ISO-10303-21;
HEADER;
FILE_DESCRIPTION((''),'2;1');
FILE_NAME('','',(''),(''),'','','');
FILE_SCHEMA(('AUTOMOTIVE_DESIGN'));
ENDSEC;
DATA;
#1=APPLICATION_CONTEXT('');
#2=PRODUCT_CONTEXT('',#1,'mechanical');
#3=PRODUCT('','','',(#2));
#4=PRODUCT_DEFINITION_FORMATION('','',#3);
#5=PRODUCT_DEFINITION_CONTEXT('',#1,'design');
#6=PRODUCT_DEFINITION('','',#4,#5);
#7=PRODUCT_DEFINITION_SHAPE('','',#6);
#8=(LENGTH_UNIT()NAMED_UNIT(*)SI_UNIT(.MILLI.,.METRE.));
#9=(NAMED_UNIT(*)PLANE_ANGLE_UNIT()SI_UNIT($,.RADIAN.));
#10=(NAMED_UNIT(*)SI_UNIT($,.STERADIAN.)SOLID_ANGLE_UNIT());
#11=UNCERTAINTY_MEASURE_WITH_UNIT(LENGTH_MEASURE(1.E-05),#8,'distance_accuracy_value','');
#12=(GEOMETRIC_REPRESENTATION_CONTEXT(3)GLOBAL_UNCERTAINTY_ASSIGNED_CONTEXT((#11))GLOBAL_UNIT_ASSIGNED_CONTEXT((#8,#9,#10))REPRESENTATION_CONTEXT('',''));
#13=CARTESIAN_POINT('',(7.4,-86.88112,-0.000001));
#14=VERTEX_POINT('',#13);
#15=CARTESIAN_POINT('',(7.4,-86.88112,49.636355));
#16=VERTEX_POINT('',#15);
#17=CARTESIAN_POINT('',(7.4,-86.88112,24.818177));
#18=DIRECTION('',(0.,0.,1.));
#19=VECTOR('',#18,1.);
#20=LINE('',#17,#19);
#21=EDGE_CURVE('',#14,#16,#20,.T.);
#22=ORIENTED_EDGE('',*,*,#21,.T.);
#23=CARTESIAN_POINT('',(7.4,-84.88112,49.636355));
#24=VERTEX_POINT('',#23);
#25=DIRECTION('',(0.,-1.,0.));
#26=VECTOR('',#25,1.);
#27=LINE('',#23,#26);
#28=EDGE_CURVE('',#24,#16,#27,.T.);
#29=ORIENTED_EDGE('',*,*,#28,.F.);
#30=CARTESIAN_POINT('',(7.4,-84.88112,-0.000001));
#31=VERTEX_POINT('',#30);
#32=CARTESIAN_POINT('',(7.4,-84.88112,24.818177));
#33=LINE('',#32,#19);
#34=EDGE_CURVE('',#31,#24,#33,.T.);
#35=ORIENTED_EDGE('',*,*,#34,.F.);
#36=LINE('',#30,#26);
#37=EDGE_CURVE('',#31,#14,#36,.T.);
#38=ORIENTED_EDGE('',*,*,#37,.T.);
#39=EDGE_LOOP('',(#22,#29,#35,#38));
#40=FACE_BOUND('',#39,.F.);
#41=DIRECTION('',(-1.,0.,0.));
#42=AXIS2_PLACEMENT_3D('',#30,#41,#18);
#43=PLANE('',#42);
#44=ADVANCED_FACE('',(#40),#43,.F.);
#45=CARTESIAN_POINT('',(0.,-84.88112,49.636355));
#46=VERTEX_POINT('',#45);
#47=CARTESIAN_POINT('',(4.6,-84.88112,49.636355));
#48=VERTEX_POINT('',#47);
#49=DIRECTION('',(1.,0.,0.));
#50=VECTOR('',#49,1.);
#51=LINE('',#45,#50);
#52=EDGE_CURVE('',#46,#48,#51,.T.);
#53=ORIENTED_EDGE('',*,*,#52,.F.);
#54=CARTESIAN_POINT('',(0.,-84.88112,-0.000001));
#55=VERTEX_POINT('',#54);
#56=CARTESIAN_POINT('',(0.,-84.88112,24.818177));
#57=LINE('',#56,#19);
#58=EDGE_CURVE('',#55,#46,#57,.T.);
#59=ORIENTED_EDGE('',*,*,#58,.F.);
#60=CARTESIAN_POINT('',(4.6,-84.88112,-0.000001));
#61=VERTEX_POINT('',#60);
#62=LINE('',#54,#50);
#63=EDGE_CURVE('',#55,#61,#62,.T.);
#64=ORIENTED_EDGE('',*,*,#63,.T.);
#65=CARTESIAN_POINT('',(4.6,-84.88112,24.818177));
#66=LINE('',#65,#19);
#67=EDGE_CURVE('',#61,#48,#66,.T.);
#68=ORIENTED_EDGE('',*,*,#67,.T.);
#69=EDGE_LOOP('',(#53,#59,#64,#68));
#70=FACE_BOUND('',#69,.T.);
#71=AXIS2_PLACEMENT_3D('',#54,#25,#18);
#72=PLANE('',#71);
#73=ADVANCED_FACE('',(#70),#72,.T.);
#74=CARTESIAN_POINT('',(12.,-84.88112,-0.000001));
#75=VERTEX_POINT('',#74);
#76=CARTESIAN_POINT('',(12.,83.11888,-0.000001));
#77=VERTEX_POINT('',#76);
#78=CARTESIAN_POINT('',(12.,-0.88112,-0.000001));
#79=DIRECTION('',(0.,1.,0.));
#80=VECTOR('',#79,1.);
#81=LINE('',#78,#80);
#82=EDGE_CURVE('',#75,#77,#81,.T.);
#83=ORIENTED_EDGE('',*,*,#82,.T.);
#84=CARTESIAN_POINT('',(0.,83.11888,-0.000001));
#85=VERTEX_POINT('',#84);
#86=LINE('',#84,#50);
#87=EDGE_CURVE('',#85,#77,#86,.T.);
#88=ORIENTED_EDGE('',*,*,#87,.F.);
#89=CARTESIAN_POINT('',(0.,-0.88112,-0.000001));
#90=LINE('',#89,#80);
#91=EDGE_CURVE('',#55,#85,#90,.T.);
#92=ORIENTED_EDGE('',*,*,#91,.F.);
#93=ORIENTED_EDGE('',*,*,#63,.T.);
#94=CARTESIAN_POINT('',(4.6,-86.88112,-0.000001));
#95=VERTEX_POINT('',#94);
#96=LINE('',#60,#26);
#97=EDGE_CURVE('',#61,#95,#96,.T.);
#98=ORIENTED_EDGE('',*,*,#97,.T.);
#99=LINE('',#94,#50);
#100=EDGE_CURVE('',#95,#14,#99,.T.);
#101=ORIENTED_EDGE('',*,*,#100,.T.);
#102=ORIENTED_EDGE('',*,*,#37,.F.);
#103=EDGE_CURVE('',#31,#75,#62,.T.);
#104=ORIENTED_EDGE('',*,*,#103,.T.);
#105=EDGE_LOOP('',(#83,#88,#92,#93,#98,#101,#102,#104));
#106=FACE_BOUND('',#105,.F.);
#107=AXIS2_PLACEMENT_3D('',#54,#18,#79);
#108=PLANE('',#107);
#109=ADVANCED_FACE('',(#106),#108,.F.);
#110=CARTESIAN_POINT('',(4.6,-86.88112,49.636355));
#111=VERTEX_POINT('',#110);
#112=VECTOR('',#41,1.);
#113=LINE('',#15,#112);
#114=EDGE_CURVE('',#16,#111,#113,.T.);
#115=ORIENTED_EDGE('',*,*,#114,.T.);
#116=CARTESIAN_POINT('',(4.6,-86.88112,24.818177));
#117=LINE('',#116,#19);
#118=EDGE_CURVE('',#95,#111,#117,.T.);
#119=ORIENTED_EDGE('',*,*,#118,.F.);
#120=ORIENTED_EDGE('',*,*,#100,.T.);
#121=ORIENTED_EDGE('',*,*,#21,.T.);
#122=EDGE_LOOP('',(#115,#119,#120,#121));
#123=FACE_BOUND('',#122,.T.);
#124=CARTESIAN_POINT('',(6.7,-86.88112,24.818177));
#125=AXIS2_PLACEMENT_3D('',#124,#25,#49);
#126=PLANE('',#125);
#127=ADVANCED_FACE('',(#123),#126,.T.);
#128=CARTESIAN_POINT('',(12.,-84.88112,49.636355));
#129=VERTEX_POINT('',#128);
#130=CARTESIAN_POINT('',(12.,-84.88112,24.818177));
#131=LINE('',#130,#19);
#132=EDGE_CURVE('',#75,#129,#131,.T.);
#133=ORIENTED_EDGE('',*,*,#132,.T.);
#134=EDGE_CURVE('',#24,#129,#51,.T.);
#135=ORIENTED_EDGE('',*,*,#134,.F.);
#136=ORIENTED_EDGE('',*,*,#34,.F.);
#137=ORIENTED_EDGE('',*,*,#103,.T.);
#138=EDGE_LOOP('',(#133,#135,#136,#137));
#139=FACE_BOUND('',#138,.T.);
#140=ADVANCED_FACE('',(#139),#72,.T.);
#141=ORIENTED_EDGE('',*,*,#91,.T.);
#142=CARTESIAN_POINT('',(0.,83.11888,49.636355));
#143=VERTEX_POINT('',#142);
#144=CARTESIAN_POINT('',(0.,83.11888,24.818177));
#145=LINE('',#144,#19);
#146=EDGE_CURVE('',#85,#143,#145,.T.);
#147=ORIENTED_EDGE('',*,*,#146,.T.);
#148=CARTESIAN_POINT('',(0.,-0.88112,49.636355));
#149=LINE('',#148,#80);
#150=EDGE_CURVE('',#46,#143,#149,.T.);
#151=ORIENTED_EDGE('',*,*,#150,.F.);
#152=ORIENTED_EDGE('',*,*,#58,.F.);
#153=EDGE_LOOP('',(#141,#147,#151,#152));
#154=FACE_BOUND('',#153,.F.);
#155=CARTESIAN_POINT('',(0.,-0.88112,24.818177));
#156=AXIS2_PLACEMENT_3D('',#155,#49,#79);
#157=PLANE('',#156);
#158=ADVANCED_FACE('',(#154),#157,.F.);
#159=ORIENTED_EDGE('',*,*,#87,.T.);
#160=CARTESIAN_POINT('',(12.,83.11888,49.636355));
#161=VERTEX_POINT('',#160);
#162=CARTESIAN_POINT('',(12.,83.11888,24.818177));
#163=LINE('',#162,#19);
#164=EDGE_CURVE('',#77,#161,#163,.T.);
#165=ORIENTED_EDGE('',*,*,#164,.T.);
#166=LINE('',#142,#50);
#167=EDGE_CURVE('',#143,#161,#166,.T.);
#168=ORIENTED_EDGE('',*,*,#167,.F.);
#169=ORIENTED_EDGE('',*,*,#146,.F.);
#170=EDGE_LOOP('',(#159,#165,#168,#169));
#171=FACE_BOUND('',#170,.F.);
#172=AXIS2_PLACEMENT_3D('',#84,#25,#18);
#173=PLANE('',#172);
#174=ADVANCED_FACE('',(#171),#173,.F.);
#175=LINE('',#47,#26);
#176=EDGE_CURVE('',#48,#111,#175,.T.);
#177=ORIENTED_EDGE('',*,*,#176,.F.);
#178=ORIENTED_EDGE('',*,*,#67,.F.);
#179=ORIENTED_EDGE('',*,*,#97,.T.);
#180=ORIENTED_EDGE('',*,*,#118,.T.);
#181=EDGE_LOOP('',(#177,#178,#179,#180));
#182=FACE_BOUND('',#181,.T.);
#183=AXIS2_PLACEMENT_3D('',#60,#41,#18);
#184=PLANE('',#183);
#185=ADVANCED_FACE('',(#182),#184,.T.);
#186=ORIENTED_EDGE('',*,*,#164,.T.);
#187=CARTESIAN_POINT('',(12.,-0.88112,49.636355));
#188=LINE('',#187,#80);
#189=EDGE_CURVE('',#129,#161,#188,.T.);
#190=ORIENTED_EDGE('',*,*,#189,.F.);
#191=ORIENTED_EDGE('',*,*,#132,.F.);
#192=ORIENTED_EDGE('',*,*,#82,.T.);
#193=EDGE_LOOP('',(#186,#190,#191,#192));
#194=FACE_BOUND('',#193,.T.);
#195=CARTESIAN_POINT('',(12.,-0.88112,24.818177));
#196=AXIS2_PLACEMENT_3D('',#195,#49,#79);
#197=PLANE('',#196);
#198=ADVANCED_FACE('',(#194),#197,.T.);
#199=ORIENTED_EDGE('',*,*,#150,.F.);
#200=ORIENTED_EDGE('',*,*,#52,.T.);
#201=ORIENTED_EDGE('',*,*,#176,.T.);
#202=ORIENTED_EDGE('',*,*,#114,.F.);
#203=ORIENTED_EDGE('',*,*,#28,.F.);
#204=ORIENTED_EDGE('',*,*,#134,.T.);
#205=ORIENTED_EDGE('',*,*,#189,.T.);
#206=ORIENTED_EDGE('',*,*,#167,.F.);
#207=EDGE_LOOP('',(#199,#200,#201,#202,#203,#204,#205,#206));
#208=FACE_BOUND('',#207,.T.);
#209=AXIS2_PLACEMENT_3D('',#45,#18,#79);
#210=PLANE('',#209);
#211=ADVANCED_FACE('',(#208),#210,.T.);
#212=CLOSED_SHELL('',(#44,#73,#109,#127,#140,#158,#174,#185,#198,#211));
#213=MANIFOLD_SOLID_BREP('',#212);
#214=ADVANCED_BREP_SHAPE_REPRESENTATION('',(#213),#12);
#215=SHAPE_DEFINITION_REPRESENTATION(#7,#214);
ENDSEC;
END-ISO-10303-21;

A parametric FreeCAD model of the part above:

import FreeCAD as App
import Part
import Sketcher
from FreeCAD import Vector


def add_polygon(sketch, points):
    """Adds a closed chain of lines whose ends are joined by coincident constraints."""
    first, n = sketch.GeometryCount, len(points)
    for a, b in zip(points, points[1:] + points[:1]):
        sketch.addGeometry(Part.LineSegment(App.Vector(*a, 0), App.Vector(*b, 0)), False)
    for i in range(n):
        sketch.addConstraint(Sketcher.Constraint("Coincident", first + i, 2, first + (i + 1) % n, 1))

doc = App.newDocument("Part")
body = doc.addObject("PartDesign::Body", "Body")

# Sketch on YZ plane
sketch1 = body.newObject("Sketcher::SketchObject", "Sketch")
sketch1.AttachmentSupport = (doc.getObject("YZ_Plane"), [""])
sketch1.MapMode = "FlatFace"
add_polygon(sketch1, [(-84.88112, 49.636355), (-84.88112, 0), (83.11888, 0), (83.11888, 49.636355)])  # lines 0-3
sketch1.addConstraint([
    Sketcher.Constraint("Vertical", 0),
    Sketcher.Constraint("Horizontal", 1),
    Sketcher.Constraint("Vertical", 2),
    Sketcher.Constraint("Horizontal", 3),
    Sketcher.Constraint("PointOnObject", 0, 2, -1),
    Sketcher.Constraint("DistanceX", 1, 1, 1, 2, 168.0),
    Sketcher.Constraint("DistanceY", 0, 2, 0, 1, 49.636355),
    Sketcher.Constraint("DistanceX", 0, 2, -1, 1, 84.88112),
])
pad1 = body.newObject("PartDesign::Pad", "Pad")
pad1.Profile = sketch1
pad1.Length = 12

# Sketch on XZ plane
sketch2 = body.newObject("Sketcher::SketchObject", "Sketch001")
sketch2.AttachmentSupport = (doc.getObject("XZ_Plane"), [""])
sketch2.MapMode = "FlatFace"
sketch2.AttachmentOffset = App.Placement(Vector(0, 0, 84.88112), App.Rotation())
add_polygon(sketch2, [(7.4, 0), (7.4, 49.636355), (4.6, 49.636355), (4.6, 0)])  # lines 0-3
sketch2.addConstraint([
    Sketcher.Constraint("Vertical", 0),
    Sketcher.Constraint("Horizontal", 1),
    Sketcher.Constraint("Vertical", 2),
    Sketcher.Constraint("Horizontal", 3),
    Sketcher.Constraint("PointOnObject", 2, 2, -1),
    Sketcher.Constraint("DistanceX", 1, 2, 1, 1, 2.8),
    Sketcher.Constraint("DistanceX", -1, 1, 0, 2, 7.4),
    Sketcher.Constraint("DistanceY", 0, 1, 0, 2, 49.636355),
])
pad2 = body.newObject("PartDesign::Pad", "Pad001")
pad2.Profile = sketch2
pad2.Length = 2

doc.recompute()
